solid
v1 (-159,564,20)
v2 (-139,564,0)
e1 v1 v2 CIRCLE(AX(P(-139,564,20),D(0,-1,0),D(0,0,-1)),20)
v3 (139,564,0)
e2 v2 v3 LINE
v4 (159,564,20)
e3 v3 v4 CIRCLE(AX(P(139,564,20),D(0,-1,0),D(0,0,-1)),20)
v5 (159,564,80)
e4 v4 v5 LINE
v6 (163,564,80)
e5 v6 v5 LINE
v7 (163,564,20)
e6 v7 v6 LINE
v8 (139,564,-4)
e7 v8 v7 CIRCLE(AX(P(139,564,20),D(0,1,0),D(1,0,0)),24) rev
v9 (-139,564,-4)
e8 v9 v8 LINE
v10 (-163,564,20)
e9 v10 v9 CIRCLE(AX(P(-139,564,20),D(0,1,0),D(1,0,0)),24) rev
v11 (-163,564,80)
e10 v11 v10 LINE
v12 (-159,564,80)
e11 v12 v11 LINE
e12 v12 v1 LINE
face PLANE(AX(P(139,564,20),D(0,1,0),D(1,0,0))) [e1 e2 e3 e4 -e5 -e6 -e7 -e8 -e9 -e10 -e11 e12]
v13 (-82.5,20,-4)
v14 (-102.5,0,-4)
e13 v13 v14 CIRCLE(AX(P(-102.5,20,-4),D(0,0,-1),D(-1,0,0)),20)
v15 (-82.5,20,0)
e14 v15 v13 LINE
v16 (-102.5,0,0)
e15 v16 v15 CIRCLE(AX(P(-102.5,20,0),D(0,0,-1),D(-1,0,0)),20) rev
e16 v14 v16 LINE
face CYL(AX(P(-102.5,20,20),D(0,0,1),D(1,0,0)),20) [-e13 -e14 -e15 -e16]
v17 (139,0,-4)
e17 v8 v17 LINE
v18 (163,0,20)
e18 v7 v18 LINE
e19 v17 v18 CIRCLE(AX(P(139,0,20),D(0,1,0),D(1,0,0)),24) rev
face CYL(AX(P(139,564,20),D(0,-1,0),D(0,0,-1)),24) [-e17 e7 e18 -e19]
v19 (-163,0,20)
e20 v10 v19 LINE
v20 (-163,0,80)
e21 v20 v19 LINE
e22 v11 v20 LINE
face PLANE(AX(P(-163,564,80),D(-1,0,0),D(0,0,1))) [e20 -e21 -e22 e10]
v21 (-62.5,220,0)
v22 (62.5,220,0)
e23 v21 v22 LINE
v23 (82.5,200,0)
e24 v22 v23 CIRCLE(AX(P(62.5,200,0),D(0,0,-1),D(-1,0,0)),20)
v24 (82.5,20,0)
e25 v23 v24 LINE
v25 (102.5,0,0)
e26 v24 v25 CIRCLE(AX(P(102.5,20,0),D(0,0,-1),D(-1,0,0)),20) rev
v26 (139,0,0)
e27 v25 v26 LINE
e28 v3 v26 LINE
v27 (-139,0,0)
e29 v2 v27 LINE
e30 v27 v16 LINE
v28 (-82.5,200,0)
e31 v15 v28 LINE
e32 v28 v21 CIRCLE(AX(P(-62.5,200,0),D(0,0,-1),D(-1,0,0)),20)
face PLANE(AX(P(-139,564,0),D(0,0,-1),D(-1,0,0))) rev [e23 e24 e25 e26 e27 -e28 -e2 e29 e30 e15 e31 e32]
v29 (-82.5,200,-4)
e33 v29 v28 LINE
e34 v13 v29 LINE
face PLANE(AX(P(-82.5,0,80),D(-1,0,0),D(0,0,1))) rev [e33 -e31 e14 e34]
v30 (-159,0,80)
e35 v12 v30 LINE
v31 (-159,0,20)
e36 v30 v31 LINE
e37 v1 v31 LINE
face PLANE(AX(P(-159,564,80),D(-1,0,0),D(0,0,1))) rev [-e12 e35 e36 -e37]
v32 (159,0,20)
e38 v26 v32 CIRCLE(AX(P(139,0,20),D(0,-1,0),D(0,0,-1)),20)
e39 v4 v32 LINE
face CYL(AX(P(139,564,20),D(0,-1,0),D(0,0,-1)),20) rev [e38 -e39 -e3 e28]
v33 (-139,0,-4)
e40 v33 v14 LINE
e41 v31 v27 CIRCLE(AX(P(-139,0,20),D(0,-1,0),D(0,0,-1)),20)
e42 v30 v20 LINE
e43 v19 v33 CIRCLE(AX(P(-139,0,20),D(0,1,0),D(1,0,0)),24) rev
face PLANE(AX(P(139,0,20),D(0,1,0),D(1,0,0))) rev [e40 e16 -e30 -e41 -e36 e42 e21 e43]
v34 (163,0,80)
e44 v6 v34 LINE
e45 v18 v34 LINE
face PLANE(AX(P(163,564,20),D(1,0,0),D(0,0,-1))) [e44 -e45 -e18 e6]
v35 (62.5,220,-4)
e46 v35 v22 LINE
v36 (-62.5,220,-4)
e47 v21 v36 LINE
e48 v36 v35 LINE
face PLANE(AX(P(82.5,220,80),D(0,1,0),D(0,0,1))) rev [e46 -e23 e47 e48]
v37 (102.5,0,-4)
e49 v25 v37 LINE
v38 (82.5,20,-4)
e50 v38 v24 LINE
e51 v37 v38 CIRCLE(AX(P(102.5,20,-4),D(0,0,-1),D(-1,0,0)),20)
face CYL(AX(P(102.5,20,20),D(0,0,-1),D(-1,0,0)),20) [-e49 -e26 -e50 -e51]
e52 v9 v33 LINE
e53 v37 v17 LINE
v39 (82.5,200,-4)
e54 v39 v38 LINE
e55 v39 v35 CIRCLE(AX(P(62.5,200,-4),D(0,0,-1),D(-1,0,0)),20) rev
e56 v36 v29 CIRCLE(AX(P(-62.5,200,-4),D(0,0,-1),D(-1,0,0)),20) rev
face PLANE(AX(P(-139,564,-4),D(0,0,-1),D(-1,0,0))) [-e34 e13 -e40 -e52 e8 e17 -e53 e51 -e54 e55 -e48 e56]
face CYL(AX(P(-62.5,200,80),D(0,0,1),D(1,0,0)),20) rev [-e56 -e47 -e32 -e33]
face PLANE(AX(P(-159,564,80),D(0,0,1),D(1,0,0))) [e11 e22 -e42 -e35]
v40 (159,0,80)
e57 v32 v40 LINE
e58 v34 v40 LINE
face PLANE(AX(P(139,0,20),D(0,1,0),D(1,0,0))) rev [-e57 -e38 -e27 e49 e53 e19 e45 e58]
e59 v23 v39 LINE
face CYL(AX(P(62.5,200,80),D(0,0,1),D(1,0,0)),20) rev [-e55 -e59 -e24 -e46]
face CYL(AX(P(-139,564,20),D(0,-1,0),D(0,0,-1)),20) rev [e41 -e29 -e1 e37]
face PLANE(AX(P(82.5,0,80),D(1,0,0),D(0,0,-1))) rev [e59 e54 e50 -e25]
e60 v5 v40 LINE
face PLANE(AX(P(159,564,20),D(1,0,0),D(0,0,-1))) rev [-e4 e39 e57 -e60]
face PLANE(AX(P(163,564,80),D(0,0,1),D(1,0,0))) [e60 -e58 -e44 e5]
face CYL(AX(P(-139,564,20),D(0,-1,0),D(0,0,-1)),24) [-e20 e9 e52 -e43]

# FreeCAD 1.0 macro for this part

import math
import FreeCAD as App
import Part
import Sketcher
from FreeCAD import Vector
Q = App.Units.Quantity


def edges_at(feature, points):
    """Names of the edges that pass closest to the given points."""
    edges = feature.Shape.Edges
    near = lambda p: min(range(len(edges)), key=lambda i: edges[i].distToShape(Part.Vertex(*p))[0])
    return sorted({f"Edge{near(p) + 1}" for p in points})


def add_polygon(sketch, points):
    """Adds a closed chain of lines whose ends are joined by coincident constraints."""
    first, n = sketch.GeometryCount, len(points)
    for a, b in zip(points, points[1:] + points[:1]):
        sketch.addGeometry(Part.LineSegment(App.Vector(*a, 0), App.Vector(*b, 0)), False)
    for i in range(n):
        sketch.addConstraint(Sketcher.Constraint("Coincident", first + i, 2, first + (i + 1) % n, 1))

doc = App.newDocument("Part")
params = doc.addObject("Spreadsheet::Sheet", "Params")
for row, (alias, value) in enumerate([
    ("sketch1_radius", "20 mm"),
    ("sketch1_radius2", "24 mm"),
    ("sketch1_width", "278 mm"),
    ("sketch1_height", "60 mm"),
    ("pad1_length", "564 mm"),
    ("sketch2_width", "165 mm"),
    ("sketch2_height", "220 mm"),
    ("fillet_radius", "20 mm"),
], start=1):
    params.set(f"A{row}", alias)
    params.set(f"B{row}", "=" + value)
    params.setAlias(f"B{row}", alias)

body = doc.addObject("PartDesign::Body", "Body")

# Sketch on XZ plane
sketch1 = body.newObject("Sketcher::SketchObject", "Sketch")
sketch1.AttachmentSupport = (doc.getObject("XZ_Plane"), [""])
sketch1.MapMode = "FlatFace"
sketch1.addGeometry(Part.LineSegment(Vector(-159, 80, 0), Vector(-159, 20, 0)), False)
sketch1.addGeometry(Part.ArcOfCircle(Part.Circle(Vector(-139, 20, 0), Vector(0, 0, 1), 20), math.radians(180), math.radians(270)), False)
sketch1.addGeometry(Part.LineSegment(Vector(-139, 0, 0), Vector(139, 0, 0)), False)
sketch1.addGeometry(Part.ArcOfCircle(Part.Circle(Vector(139, 20, 0), Vector(0, 0, 1), 20), math.radians(-90), math.radians(0)), False)
sketch1.addGeometry(Part.LineSegment(Vector(159, 20, 0), Vector(159, 80, 0)), False)
sketch1.addGeometry(Part.LineSegment(Vector(159, 80, 0), Vector(163, 80, 0)), False)
sketch1.addGeometry(Part.LineSegment(Vector(163, 80, 0), Vector(163, 20, 0)), False)
sketch1.addGeometry(Part.ArcOfCircle(Part.Circle(Vector(139, 20, 0), Vector(0, 0, 1), 24), math.radians(-90), math.radians(0)), False)
sketch1.addGeometry(Part.LineSegment(Vector(139, -4, 0), Vector(-139, -4, 0)), False)
sketch1.addGeometry(Part.ArcOfCircle(Part.Circle(Vector(-139, 20, 0), Vector(0, 0, 1), 24), math.radians(-180), math.radians(-90)), False)
sketch1.addGeometry(Part.LineSegment(Vector(-163, 20, 0), Vector(-163, 80, 0)), False)
sketch1.addGeometry(Part.LineSegment(Vector(-163, 80, 0), Vector(-159, 80, 0)), False)
sketch1.addConstraint(Sketcher.Constraint("Tangent", 0, 2, 1, 1))
sketch1.addConstraint(Sketcher.Constraint("Tangent", 1, 2, 2, 1))
sketch1.addConstraint(Sketcher.Constraint("Tangent", 2, 2, 3, 1))
sketch1.addConstraint(Sketcher.Constraint("Tangent", 3, 2, 4, 1))
sketch1.addConstraint(Sketcher.Constraint("Coincident", 4, 2, 5, 1))
sketch1.addConstraint(Sketcher.Constraint("Coincident", 5, 2, 6, 1))
sketch1.addConstraint(Sketcher.Constraint("Tangent", 6, 2, 7, 2))
sketch1.addConstraint(Sketcher.Constraint("Tangent", 7, 1, 8, 1))
sketch1.addConstraint(Sketcher.Constraint("Tangent", 8, 2, 9, 2))
sketch1.addConstraint(Sketcher.Constraint("Tangent", 9, 1, 10, 1))
sketch1.addConstraint(Sketcher.Constraint("Coincident", 10, 2, 11, 1))
sketch1.addConstraint(Sketcher.Constraint("Coincident", 11, 2, 0, 1))
sketch1.addConstraint(Sketcher.Constraint("Vertical", 0))
sketch1.addConstraint(Sketcher.Constraint("Horizontal", 2))
sketch1.addConstraint(Sketcher.Constraint("Vertical", 4))
sketch1.addConstraint(Sketcher.Constraint("Horizontal", 5))
sketch1.addConstraint(Sketcher.Constraint("Vertical", 6))
sketch1.addConstraint(Sketcher.Constraint("Horizontal", 8))
sketch1.addConstraint(Sketcher.Constraint("Vertical", 10))
sketch1.addConstraint(Sketcher.Constraint("Horizontal", 11))
sketch1.addConstraint(Sketcher.Constraint("Coincident", 7, 3, 3, 3))
sketch1.addConstraint(Sketcher.Constraint("Coincident", 9, 3, 1, 3))
sketch1.addConstraint(Sketcher.Constraint("Equal", 1, 3))
sketch1.addConstraint(Sketcher.Constraint("Symmetric", 1, 2, 2, 2, -1, 1))
sketch1.addConstraint(Sketcher.Constraint("Horizontal", 5, 2, 10, 2))
sketch1.addConstraint(Sketcher.Constraint("Radius", 1, Q("20 mm")))
sketch1.addConstraint(Sketcher.Constraint("Radius", 7, Q("24 mm")))
sketch1.addConstraint(Sketcher.Constraint("DistanceX", 2, 1, 2, 2, Q("278 mm")))
sketch1.addConstraint(Sketcher.Constraint("DistanceY", 0, 2, 0, 1, Q("60 mm")))
sketch1.setExpression("Constraints[25]", "Params.sketch1_radius")
sketch1.setExpression("Constraints[26]", "Params.sketch1_radius2")
sketch1.setExpression("Constraints[27]", "Params.sketch1_width")
sketch1.setExpression("Constraints[28]", "Params.sketch1_height")
pad1 = body.newObject("PartDesign::Pad", "Pad")
pad1.Profile = sketch1
pad1.setExpression("Length", "Params.pad1_length")
pad1.Reversed = True

# Sketch on XY plane
sketch2 = body.newObject("Sketcher::SketchObject", "Sketch001")
sketch2.AttachmentSupport = (doc.getObject("XY_Plane"), [""])
sketch2.MapMode = "FlatFace"
sketch2.AttachmentOffset = App.Placement(Vector(0, 0, -4), App.Rotation())
add_polygon(sketch2, [(82, 220), (82, 0), (-82, 0), (-82, 220)])  # lines 0-3
sketch2.addConstraint(Sketcher.Constraint("Vertical", 0))
sketch2.addConstraint(Sketcher.Constraint("Horizontal", 1))
sketch2.addConstraint(Sketcher.Constraint("Vertical", 2))
sketch2.addConstraint(Sketcher.Constraint("Horizontal", 3))
sketch2.addConstraint(Sketcher.Constraint("Symmetric", 0, 2, 1, 2, -1, 1))
sketch2.addConstraint(Sketcher.Constraint("DistanceX", 1, 2, 1, 1, Q("165 mm")))
sketch2.addConstraint(Sketcher.Constraint("DistanceY", 0, 2, 0, 1, Q("220 mm")))
sketch2.setExpression("Constraints[9]", "Params.sketch2_width")
sketch2.setExpression("Constraints[10]", "Params.sketch2_height")
pocket1 = body.newObject("PartDesign::Pocket", "Pocket")
pocket1.Profile = sketch2
pocket1.Type = "ThroughAll"
pocket1.Midplane = True
doc.recompute()

fillet = body.newObject("PartDesign::Fillet", "Fillet")
fillet.Base = (pocket1, edges_at(pocket1, [
    (-82.5, 0, -2),
    (82.5, 0, -2),
    (82.5, 220, -2),
    (-82.5, 220, -2),
]))
fillet.setExpression("Radius", "Params.fillet_radius")

doc.recompute()
